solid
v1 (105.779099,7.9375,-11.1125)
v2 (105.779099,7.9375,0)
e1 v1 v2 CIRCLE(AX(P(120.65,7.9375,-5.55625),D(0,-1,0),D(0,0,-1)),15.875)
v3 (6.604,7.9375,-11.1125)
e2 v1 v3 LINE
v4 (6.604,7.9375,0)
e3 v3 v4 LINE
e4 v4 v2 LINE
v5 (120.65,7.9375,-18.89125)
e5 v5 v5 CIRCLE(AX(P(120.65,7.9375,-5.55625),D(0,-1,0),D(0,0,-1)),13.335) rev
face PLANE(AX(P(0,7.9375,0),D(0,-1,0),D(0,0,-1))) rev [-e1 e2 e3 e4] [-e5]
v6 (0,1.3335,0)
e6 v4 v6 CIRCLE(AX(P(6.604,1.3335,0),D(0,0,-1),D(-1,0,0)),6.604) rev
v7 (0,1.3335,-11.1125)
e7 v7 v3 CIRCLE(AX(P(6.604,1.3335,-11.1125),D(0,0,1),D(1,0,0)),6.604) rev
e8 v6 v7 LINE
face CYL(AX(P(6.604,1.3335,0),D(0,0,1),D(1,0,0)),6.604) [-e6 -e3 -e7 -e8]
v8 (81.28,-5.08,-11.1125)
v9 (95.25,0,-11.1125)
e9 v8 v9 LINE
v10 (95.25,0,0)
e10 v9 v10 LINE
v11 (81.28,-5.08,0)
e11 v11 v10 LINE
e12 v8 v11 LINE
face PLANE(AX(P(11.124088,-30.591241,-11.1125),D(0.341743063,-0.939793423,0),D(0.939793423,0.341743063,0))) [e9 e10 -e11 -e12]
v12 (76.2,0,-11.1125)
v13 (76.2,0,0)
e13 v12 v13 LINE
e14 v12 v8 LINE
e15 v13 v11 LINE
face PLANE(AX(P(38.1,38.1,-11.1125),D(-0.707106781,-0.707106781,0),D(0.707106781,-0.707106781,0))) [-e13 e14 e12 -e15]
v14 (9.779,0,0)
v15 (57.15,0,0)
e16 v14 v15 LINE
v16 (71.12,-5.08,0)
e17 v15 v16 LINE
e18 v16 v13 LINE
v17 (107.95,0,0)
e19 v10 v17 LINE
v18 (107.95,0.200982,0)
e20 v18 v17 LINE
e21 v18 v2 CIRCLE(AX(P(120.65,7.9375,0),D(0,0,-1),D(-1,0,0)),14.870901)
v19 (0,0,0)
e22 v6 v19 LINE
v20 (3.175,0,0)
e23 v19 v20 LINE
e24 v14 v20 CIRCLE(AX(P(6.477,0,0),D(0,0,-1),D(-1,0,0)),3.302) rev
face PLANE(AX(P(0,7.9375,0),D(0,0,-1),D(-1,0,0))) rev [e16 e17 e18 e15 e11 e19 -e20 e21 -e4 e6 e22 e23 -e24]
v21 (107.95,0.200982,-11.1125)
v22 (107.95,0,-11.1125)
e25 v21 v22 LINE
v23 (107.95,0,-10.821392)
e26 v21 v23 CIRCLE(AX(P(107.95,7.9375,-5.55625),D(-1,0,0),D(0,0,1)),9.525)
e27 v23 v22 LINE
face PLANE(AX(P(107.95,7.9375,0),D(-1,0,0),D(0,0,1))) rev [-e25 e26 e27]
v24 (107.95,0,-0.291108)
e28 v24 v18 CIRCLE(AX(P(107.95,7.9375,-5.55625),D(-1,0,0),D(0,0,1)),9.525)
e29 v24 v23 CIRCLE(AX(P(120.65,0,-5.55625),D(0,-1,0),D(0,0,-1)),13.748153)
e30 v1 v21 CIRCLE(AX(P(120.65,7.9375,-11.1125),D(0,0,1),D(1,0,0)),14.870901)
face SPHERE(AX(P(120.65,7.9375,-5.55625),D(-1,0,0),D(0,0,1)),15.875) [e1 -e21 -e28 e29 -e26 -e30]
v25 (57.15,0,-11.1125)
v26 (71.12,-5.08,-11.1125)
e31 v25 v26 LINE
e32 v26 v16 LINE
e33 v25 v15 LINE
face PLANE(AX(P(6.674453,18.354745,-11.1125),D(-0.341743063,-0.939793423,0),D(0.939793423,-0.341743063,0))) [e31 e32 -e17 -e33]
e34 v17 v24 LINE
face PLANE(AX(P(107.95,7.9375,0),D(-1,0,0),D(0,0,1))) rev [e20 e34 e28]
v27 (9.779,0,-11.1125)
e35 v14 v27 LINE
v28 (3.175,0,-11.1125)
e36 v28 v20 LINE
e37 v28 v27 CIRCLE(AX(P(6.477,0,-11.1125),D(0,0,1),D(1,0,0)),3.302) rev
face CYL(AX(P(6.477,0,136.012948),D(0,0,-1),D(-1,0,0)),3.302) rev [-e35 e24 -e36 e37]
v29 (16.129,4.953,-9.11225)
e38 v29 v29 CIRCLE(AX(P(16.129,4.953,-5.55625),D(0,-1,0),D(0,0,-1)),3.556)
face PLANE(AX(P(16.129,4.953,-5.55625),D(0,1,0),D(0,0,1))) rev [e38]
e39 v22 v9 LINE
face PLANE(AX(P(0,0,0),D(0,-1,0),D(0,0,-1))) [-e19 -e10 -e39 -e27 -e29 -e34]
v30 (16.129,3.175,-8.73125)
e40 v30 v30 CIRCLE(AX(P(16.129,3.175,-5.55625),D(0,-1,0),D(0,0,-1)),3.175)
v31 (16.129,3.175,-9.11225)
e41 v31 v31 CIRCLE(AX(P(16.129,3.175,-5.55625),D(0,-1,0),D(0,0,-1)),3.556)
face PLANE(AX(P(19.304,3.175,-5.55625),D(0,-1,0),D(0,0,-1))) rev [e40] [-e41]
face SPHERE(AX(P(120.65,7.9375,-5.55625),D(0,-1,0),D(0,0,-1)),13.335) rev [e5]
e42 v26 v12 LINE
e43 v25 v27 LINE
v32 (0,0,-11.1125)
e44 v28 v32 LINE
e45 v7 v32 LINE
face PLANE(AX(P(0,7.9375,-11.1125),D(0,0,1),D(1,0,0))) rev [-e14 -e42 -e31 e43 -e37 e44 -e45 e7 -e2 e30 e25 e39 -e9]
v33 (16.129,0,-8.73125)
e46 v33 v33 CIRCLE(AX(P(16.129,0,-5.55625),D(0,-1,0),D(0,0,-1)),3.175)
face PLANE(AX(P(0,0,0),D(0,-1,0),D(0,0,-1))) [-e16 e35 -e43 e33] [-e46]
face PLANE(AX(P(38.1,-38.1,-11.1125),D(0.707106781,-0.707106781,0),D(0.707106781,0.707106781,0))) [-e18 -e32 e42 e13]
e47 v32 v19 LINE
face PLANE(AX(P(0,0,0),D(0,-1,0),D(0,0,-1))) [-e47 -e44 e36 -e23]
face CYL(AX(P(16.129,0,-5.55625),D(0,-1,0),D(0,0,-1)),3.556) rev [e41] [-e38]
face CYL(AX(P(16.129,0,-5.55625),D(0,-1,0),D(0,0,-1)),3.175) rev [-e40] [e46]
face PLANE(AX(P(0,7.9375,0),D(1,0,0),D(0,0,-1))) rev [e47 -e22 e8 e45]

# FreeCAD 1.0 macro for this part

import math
import FreeCAD as App
import Part
import Sketcher

V = App.Vector
Q = App.Units.Quantity


def edges_at(feature, points):
    """Names of the edges that pass closest to the given points."""
    edges = feature.Shape.Edges
    near = lambda p: min(range(len(edges)), key=lambda i: edges[i].distToShape(Part.Vertex(*p))[0])
    return sorted({f"Edge{near(p) + 1}" for p in points})


def add_polygon(sketch, points):
    """Adds a closed chain of lines whose ends are joined by coincident constraints."""
    first, n = sketch.GeometryCount, len(points)
    for a, b in zip(points, points[1:] + points[:1]):
        sketch.addGeometry(Part.LineSegment(App.Vector(*a, 0), App.Vector(*b, 0)), False)
    for i in range(n):
        sketch.addConstraint(Sketcher.Constraint("Coincident", first + i, 2, first + (i + 1) % n, 1))

doc = App.newDocument("Part")
body = doc.addObject("PartDesign::Body", "Body")

# Sketch on XZ plane
sketch1 = doc.addObject("Sketcher::SketchObject", "Sketch")
body.addObject(sketch1)
sketch1.AttachmentSupport = (doc.XZ_Plane, [""])
sketch1.MapMode = "FlatFace"
add_polygon(sketch1, [(0, -11), (0, 0), (108, 0), (108, -11)])  # lines 0-3
sketch1.addConstraint(Sketcher.Constraint("Vertical", 0))
sketch1.addConstraint(Sketcher.Constraint("Horizontal", 1))
sketch1.addConstraint(Sketcher.Constraint("Vertical", 2))
sketch1.addConstraint(Sketcher.Constraint("Horizontal", 3))
sketch1.addConstraint(Sketcher.Constraint("Coincident", 0, 2, -1, 1))
sketch1.addConstraint(Sketcher.Constraint("DistanceX", 1, 1, 1, 2, Q("4.25 in")))
sketch1.addConstraint(Sketcher.Constraint("DistanceY", 0, 1, 0, 2, Q("0.4375 in")))
pad1 = doc.addObject("PartDesign::Pad", "Pad")
body.addObject(pad1)
pad1.Profile = sketch1
pad1.Length = Q("0.3125 in")
pad1.Reversed = True

# Sketch on XY plane
sketch2 = doc.addObject("Sketcher::SketchObject", "Sketch001")
body.addObject(sketch2)
sketch2.AttachmentSupport = (doc.XY_Plane, [""])
sketch2.MapMode = "FlatFace"
sketch2.addGeometry(Part.LineSegment(V(3.2, 0, 0), V(9.8, 0, 0)), False)
sketch2.addGeometry(Part.ArcOfCircle(Part.Circle(V(6.5, 0, 0), V(0, 0, 1), 3.3), math.radians(0), math.radians(180)), False)
sketch2.addConstraint(Sketcher.Constraint("Coincident", 0, 1, 1, 2))
sketch2.addConstraint(Sketcher.Constraint("Coincident", 1, 1, 0, 2))
sketch2.addConstraint(Sketcher.Constraint("Horizontal", 0))
sketch2.addConstraint(Sketcher.Constraint("PointOnObject", 1, 3, -1))
sketch2.addConstraint(Sketcher.Constraint("PointOnObject", 0, 1, -1))
sketch2.addConstraint(Sketcher.Constraint("Radius", 1, Q("0.13 in")))
sketch2.addConstraint(Sketcher.Constraint("DistanceX", -1, 1, 1, 3, Q("0.255 in")))
pocket1 = doc.addObject("PartDesign::Pocket", "Pocket")
body.addObject(pocket1)
pocket1.Profile = sketch2
pocket1.Type = "ThroughAll"
pocket1.Midplane = True

# Sketch on XY plane
sketch3 = doc.addObject("Sketcher::SketchObject", "Sketch002")
body.addObject(sketch3)
sketch3.AttachmentSupport = (doc.XY_Plane, [""])
sketch3.MapMode = "FlatFace"
add_polygon(sketch3, [(76, 0), (57, 0), (71, -5)])  # lines 0-2
add_polygon(sketch3, [(95, 0), (76, 0), (81, -5)])  # lines 3-5
sketch3.addConstraint(Sketcher.Constraint("Horizontal", 0))
sketch3.addConstraint(Sketcher.Constraint("Horizontal", 3))
sketch3.addConstraint(Sketcher.Constraint("Coincident", 3, 2, 2, 2))
sketch3.addConstraint(Sketcher.Constraint("PointOnObject", 0, 2, -1))
sketch3.addConstraint(Sketcher.Constraint("Perpendicular", 2, 4))
sketch3.addConstraint(Sketcher.Constraint("Horizontal", 1, 2, 4, 2))
sketch3.addConstraint(Sketcher.Constraint("Equal", 0, 3))
sketch3.addConstraint(Sketcher.Constraint("Equal", 2, 4))
sketch3.addConstraint(Sketcher.Constraint("DistanceX", -1, 1, 2, 2, Q("3 in")))
sketch3.addConstraint(Sketcher.Constraint("DistanceX", 0, 2, 0, 1, Q("0.75 in")))
sketch3.addConstraint(Sketcher.Constraint("DistanceX", -1, 1, 1, 2, Q("2.8 in")))
pad2 = doc.addObject("PartDesign::Pad", "Pad001")
body.addObject(pad2)
pad2.Profile = sketch3
pad2.Length = Q("0.4375 in")
pad2.Reversed = True
doc.recompute()

fillet = doc.addObject("PartDesign::Fillet", "Fillet")
body.addObject(fillet)
fillet.Base = (pad2, edges_at(pad2, [(0, 7.938, -5.556)]))
fillet.Radius = Q("0.26 in")

# Sketch on XZ plane
sketch4 = doc.addObject("Sketcher::SketchObject", "Sketch003")
body.addObject(sketch4)
sketch4.AttachmentSupport = (doc.XZ_Plane, [""])
sketch4.MapMode = "FlatFace"
sketch4.AttachmentOffset = App.Placement(V(0, 0, -0.3125 * 25.4), App.Rotation())
sketch4.addGeometry(Part.LineSegment(V(137, -6, 0), V(105, -6, 0)), False)
sketch4.addGeometry(Part.ArcOfCircle(Part.Circle(V(121, -6, 0), V(0, 0, 1), 16), math.radians(0), math.radians(180)), False)
sketch4.addGeometry(Part.LineSegment(V(105, -6, 0), V(137, -6, 0)), True)  # axis
sketch4.addConstraint(Sketcher.Constraint("Coincident", 0, 1, 1, 1))
sketch4.addConstraint(Sketcher.Constraint("Coincident", 1, 2, 0, 2))
sketch4.addConstraint(Sketcher.Constraint("Horizontal", 0))
sketch4.addConstraint(Sketcher.Constraint("Horizontal", 2))
sketch4.addConstraint(Sketcher.Constraint("Coincident", 2, 1, 1, 2))
sketch4.addConstraint(Sketcher.Constraint("Horizontal", 1, 3, 0, 1))
sketch4.addConstraint(Sketcher.Constraint("Equal", 0, 2))
sketch4.addConstraint(Sketcher.Constraint("Radius", 1, Q("0.625 in")))
sketch4.addConstraint(Sketcher.Constraint("DistanceX", -1, 1, 1, 3, Q("4.75 in")))
sketch4.addConstraint(Sketcher.Constraint("DistanceY", 1, 3, -1, 1, Q("0.21875 in")))
revolution = doc.addObject("PartDesign::Revolution", "Revolution")
body.addObject(revolution)
revolution.Profile = sketch4
revolution.ReferenceAxis = (sketch4, ["Axis0"])
revolution.Angle = 180

# Sketch on XZ plane
sketch5 = doc.addObject("Sketcher::SketchObject", "Sketch004")
body.addObject(sketch5)
sketch5.AttachmentSupport = (doc.XZ_Plane, [""])
sketch5.MapMode = "FlatFace"
sketch5.AttachmentOffset = App.Placement(V(0, 0, -0.3125 * 25.4), App.Rotation())
sketch5.addGeometry(Part.LineSegment(V(134, -6, 0), V(107, -6, 0)), False)
sketch5.addGeometry(Part.ArcOfCircle(Part.Circle(V(121, -6, 0), V(0, 0, 1), 13), math.radians(0), math.radians(180)), False)
sketch5.addGeometry(Part.LineSegment(V(107, -6, 0), V(134, -6, 0)), True)  # axis
sketch5.addConstraint(Sketcher.Constraint("Coincident", 0, 1, 1, 1))
sketch5.addConstraint(Sketcher.Constraint("Coincident", 1, 2, 0, 2))
sketch5.addConstraint(Sketcher.Constraint("Horizontal", 0))
sketch5.addConstraint(Sketcher.Constraint("Horizontal", 2))
sketch5.addConstraint(Sketcher.Constraint("Coincident", 2, 1, 1, 2))
sketch5.addConstraint(Sketcher.Constraint("Horizontal", 1, 3, 0, 1))
sketch5.addConstraint(Sketcher.Constraint("Equal", 0, 2))
sketch5.addConstraint(Sketcher.Constraint("Radius", 1, Q("0.525 in")))
sketch5.addConstraint(Sketcher.Constraint("DistanceX", -1, 1, 1, 3, Q("4.75 in")))
sketch5.addConstraint(Sketcher.Constraint("DistanceY", 1, 3, -1, 1, Q("0.21875 in")))
groove = doc.addObject("PartDesign::Groove", "Groove")
body.addObject(groove)
groove.Profile = sketch5
groove.ReferenceAxis = (sketch5, ["Axis0"])
groove.Angle = 360

# Sketch on XY plane
sketch6 = doc.addObject("Sketcher::SketchObject", "Sketch005")
body.addObject(sketch6)
sketch6.AttachmentSupport = (doc.XY_Plane, [""])
sketch6.MapMode = "FlatFace"
sketch6.AttachmentOffset = App.Placement(V(0, 0, -0.21875 * 25.4), App.Rotation())
add_polygon(sketch6, [(16.13, 0), (19.3, 0), (19.3, 3.17), (19.68, 3.17), (19.68, 4.95), (16.13, 4.95)])  # lines 0-5
sketch6.addGeometry(Part.LineSegment(V(16.13, 0, 0), V(16.13, 4.95, 0)), True)  # axis
sketch6.addConstraint(Sketcher.Constraint("Horizontal", 0))
sketch6.addConstraint(Sketcher.Constraint("Vertical", 1))
sketch6.addConstraint(Sketcher.Constraint("Horizontal", 2))
sketch6.addConstraint(Sketcher.Constraint("Vertical", 3))
sketch6.addConstraint(Sketcher.Constraint("Horizontal", 4))
sketch6.addConstraint(Sketcher.Constraint("Vertical", 5))
sketch6.addConstraint(Sketcher.Constraint("Vertical", 6))
sketch6.addConstraint(Sketcher.Constraint("Coincident", 6, 1, 5, 2))
sketch6.addConstraint(Sketcher.Constraint("PointOnObject", 0, 2, -1))
sketch6.addConstraint(Sketcher.Constraint("Horizontal", 3, 2, 6, 2))
sketch6.addConstraint(Sketcher.Constraint("Equal", 0, 1))
sketch6.addConstraint(Sketcher.Constraint("DistanceX", 4, 2, 4, 1, Q("0.14 in")))
sketch6.addConstraint(Sketcher.Constraint("DistanceY", 3, 1, 3, 2, Q("0.07 in")))
sketch6.addConstraint(Sketcher.Constraint("DistanceX", 0, 1, 0, 2, Q("0.125 in")))
sketch6.addConstraint(Sketcher.Constraint("DistanceX", -1, 1, 0, 2, Q("0.76 in")))
groove2 = doc.addObject("PartDesign::Groove", "Groove001")
body.addObject(groove2)
groove2.Profile = sketch6
groove2.ReferenceAxis = (sketch6, ["Axis0"])
groove2.Angle = 360

doc.recompute()
